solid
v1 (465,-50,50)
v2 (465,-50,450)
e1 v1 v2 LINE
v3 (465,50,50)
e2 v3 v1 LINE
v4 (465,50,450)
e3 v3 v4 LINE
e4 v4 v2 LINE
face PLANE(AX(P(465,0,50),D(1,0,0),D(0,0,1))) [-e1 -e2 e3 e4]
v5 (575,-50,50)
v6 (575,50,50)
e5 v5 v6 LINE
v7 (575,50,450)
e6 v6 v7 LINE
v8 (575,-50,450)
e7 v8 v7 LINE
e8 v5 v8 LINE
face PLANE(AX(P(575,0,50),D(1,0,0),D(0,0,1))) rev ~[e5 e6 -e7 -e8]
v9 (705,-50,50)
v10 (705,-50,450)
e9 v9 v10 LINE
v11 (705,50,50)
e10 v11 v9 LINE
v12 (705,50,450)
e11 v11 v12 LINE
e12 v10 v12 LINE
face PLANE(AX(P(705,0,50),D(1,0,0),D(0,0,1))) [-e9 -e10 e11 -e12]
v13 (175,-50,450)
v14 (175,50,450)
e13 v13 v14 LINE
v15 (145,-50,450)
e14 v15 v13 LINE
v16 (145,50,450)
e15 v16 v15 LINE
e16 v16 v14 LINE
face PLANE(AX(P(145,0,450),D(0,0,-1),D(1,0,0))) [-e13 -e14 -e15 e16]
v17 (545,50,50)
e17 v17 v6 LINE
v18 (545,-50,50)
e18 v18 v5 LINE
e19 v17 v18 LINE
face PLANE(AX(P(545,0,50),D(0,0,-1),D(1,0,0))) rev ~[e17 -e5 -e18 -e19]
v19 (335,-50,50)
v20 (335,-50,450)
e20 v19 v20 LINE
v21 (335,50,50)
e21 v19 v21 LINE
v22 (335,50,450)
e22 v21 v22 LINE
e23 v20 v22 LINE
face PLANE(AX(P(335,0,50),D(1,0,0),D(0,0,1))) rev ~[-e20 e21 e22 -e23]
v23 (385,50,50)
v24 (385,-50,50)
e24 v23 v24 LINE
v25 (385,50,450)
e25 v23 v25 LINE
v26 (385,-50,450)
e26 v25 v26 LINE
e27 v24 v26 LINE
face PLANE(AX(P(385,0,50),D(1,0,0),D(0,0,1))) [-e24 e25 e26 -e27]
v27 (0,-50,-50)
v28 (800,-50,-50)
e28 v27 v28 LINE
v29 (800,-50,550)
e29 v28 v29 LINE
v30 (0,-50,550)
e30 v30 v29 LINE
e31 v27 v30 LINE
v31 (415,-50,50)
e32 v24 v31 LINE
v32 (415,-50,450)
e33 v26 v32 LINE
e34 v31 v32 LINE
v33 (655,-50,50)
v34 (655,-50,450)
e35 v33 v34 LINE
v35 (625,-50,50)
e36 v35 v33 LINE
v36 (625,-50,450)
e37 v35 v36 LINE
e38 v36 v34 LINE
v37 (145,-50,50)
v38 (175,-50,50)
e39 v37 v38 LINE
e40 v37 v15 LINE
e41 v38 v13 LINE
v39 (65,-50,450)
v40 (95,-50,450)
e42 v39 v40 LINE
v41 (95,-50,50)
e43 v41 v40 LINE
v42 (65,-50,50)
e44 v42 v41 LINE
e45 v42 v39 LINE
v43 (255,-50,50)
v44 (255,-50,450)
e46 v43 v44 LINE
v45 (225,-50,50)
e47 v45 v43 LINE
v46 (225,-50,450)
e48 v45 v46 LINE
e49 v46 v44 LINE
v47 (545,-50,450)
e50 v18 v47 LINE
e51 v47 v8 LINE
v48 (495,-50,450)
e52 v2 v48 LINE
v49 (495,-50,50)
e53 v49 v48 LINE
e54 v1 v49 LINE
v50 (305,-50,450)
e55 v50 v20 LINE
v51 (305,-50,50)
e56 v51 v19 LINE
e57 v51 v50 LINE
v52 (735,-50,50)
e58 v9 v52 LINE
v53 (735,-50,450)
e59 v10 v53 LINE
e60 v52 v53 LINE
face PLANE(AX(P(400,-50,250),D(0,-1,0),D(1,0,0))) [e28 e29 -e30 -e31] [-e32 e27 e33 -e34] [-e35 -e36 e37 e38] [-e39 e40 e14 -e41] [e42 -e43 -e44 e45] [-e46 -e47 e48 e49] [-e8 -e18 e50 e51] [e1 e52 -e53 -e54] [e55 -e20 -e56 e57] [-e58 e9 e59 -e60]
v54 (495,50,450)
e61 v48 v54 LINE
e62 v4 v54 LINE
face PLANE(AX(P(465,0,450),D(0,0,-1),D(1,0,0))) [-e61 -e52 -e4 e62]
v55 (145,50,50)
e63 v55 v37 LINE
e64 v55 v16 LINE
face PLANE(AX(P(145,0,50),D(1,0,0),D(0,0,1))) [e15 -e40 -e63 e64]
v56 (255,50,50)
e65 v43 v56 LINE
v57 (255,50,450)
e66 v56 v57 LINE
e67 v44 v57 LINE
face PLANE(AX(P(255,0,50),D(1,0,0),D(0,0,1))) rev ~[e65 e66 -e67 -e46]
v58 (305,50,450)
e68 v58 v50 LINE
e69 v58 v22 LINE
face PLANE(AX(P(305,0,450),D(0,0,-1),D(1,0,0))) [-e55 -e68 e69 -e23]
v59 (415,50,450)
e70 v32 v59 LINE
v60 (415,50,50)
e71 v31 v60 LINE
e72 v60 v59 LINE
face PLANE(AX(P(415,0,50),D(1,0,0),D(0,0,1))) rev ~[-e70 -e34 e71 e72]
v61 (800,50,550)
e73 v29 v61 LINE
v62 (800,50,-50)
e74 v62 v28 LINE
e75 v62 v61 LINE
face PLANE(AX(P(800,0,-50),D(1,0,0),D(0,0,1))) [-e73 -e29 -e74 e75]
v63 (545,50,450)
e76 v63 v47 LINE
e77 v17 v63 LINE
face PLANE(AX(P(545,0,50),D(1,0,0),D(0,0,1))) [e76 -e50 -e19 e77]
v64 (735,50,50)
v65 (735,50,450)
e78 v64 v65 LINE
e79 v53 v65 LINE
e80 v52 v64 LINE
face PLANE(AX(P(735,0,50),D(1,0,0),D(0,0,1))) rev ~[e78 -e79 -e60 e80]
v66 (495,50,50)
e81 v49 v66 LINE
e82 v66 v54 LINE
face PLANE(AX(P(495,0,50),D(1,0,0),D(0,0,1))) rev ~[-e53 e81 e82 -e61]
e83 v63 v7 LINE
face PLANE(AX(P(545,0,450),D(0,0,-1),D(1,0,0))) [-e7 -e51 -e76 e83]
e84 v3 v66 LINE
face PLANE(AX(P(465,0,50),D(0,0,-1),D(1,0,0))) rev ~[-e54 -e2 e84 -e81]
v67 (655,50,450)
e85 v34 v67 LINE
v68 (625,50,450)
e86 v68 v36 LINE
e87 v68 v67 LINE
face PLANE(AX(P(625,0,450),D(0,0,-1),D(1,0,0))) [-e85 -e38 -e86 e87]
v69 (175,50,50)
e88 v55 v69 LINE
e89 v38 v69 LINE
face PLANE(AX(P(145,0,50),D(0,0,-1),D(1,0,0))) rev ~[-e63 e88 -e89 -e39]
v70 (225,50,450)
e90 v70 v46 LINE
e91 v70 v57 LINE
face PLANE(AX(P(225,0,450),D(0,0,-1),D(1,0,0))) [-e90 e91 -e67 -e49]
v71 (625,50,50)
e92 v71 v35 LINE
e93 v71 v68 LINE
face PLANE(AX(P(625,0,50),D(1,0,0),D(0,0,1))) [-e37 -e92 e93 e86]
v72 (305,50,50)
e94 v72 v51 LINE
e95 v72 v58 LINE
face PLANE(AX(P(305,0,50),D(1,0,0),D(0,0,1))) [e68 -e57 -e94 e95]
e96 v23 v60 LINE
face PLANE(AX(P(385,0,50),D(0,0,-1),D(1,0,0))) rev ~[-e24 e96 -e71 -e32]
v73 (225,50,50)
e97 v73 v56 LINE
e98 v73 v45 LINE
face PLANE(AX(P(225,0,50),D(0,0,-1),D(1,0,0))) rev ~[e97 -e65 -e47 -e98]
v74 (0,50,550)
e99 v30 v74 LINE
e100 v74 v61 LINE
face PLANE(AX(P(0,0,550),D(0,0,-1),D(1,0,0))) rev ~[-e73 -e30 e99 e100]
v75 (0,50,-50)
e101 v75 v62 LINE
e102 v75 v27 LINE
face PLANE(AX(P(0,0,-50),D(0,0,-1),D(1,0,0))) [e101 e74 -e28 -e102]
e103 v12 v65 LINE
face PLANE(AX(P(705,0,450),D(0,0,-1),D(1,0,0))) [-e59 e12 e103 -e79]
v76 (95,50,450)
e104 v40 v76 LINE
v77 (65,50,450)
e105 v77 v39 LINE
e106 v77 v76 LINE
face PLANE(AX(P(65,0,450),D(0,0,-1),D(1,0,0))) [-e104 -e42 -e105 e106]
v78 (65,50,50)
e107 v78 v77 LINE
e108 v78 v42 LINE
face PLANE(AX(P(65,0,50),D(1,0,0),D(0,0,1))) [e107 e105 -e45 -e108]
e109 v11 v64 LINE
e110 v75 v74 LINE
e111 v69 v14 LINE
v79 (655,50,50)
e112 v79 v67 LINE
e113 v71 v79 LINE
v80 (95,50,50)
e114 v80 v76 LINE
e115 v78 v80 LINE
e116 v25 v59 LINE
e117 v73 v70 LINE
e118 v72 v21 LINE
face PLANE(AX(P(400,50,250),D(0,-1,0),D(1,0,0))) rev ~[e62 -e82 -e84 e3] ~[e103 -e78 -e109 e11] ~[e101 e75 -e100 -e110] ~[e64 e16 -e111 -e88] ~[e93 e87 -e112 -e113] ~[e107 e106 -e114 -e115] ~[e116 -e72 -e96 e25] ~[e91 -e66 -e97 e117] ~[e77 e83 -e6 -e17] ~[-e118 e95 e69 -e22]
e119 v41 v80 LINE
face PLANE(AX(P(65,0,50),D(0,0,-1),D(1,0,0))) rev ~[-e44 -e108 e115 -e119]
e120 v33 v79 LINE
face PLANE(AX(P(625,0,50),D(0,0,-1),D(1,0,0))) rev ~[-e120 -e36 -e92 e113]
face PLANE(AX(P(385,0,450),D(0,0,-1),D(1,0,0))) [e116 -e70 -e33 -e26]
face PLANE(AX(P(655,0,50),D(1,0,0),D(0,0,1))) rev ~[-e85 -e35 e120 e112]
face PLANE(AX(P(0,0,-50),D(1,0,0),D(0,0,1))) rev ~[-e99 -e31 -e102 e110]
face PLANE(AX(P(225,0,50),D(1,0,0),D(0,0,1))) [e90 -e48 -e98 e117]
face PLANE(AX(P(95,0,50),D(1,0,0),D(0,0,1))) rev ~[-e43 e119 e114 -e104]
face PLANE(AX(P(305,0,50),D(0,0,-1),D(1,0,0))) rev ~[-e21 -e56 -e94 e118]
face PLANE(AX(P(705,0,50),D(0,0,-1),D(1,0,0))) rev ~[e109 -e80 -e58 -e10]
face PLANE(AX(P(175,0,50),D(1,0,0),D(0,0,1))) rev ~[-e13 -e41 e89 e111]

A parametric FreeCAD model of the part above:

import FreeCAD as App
import Part
import Sketcher
from FreeCAD import Vector


def add_polygon(sketch, points):
    """Adds a closed chain of lines whose ends are joined by coincident constraints."""
    first, n = sketch.GeometryCount, len(points)
    for a, b in zip(points, points[1:] + points[:1]):
        sketch.addGeometry(Part.LineSegment(App.Vector(*a, 0), App.Vector(*b, 0)), False)
    for i in range(n):
        sketch.addConstraint(Sketcher.Constraint("Coincident", first + i, 2, first + (i + 1) % n, 1))

doc = App.newDocument("Part")
body = doc.addObject("PartDesign::Body", "Body")

# Sketch on XZ plane
sketch1 = body.newObject("Sketcher::SketchObject", "Sketch")
sketch1.AttachmentSupport = (doc.getObject("XZ_Plane"), [""])
sketch1.MapMode = "FlatFace"
add_polygon(sketch1, [(0, 550), (0, -50), (800, -50), (800, 550)])  # lines 0-3
add_polygon(sketch1, [(95, 50), (65, 50), (65, 450), (95, 450)])  # lines 4-7
add_polygon(sketch1, [(175, 50), (145, 50), (145, 450), (175, 450)])  # lines 8-11
add_polygon(sketch1, [(255, 50), (225, 50), (225, 450), (255, 450)])  # lines 12-15
add_polygon(sketch1, [(335, 50), (305, 50), (305, 450), (335, 450)])  # lines 16-19
add_polygon(sketch1, [(415, 50), (385, 50), (385, 450), (415, 450)])  # lines 20-23
add_polygon(sketch1, [(495, 50), (465, 50), (465, 450), (495, 450)])  # lines 24-27
add_polygon(sketch1, [(575, 50), (545, 50), (545, 450), (575, 450)])  # lines 28-31
add_polygon(sketch1, [(655, 50), (625, 50), (625, 450), (655, 450)])  # lines 32-35
add_polygon(sketch1, [(735, 50), (705, 50), (705, 450), (735, 450)])  # lines 36-39
sketch1.addConstraint(Sketcher.Constraint("Vertical", 0))
sketch1.addConstraint(Sketcher.Constraint("Horizontal", 1))
sketch1.addConstraint(Sketcher.Constraint("Vertical", 2))
sketch1.addConstraint(Sketcher.Constraint("Horizontal", 3))
sketch1.addConstraint(Sketcher.Constraint("Horizontal", 4))
sketch1.addConstraint(Sketcher.Constraint("Vertical", 5))
sketch1.addConstraint(Sketcher.Constraint("Horizontal", 6))
sketch1.addConstraint(Sketcher.Constraint("Vertical", 7))
sketch1.addConstraint(Sketcher.Constraint("Horizontal", 8))
sketch1.addConstraint(Sketcher.Constraint("Vertical", 9))
sketch1.addConstraint(Sketcher.Constraint("Horizontal", 10))
sketch1.addConstraint(Sketcher.Constraint("Vertical", 11))
sketch1.addConstraint(Sketcher.Constraint("Horizontal", 12))
sketch1.addConstraint(Sketcher.Constraint("Vertical", 13))
sketch1.addConstraint(Sketcher.Constraint("Horizontal", 14))
sketch1.addConstraint(Sketcher.Constraint("Vertical", 15))
sketch1.addConstraint(Sketcher.Constraint("Horizontal", 16))
sketch1.addConstraint(Sketcher.Constraint("Vertical", 17))
sketch1.addConstraint(Sketcher.Constraint("Horizontal", 18))
sketch1.addConstraint(Sketcher.Constraint("Vertical", 19))
sketch1.addConstraint(Sketcher.Constraint("Horizontal", 20))
sketch1.addConstraint(Sketcher.Constraint("Vertical", 21))
sketch1.addConstraint(Sketcher.Constraint("Horizontal", 22))
sketch1.addConstraint(Sketcher.Constraint("Vertical", 23))
sketch1.addConstraint(Sketcher.Constraint("Horizontal", 24))
sketch1.addConstraint(Sketcher.Constraint("Vertical", 25))
sketch1.addConstraint(Sketcher.Constraint("Horizontal", 26))
sketch1.addConstraint(Sketcher.Constraint("Vertical", 27))
sketch1.addConstraint(Sketcher.Constraint("Horizontal", 28))
sketch1.addConstraint(Sketcher.Constraint("Vertical", 29))
sketch1.addConstraint(Sketcher.Constraint("Horizontal", 30))
sketch1.addConstraint(Sketcher.Constraint("Vertical", 31))
sketch1.addConstraint(Sketcher.Constraint("Horizontal", 32))
sketch1.addConstraint(Sketcher.Constraint("Vertical", 33))
sketch1.addConstraint(Sketcher.Constraint("Horizontal", 34))
sketch1.addConstraint(Sketcher.Constraint("Vertical", 35))
sketch1.addConstraint(Sketcher.Constraint("Horizontal", 36))
sketch1.addConstraint(Sketcher.Constraint("Vertical", 37))
sketch1.addConstraint(Sketcher.Constraint("Horizontal", 38))
sketch1.addConstraint(Sketcher.Constraint("Vertical", 39))
sketch1.addConstraint(Sketcher.Constraint("PointOnObject", 0, 2, -2))
sketch1.addConstraint(Sketcher.Constraint("Horizontal", 7, 2, 8, 2))
sketch1.addConstraint(Sketcher.Constraint("Horizontal", 6, 2, 9, 2))
sketch1.addConstraint(Sketcher.Constraint("Horizontal", 11, 2, 12, 2))
sketch1.addConstraint(Sketcher.Constraint("Horizontal", 10, 2, 13, 2))
sketch1.addConstraint(Sketcher.Constraint("Horizontal", 15, 2, 16, 2))
sketch1.addConstraint(Sketcher.Constraint("Horizontal", 14, 2, 17, 2))
sketch1.addConstraint(Sketcher.Constraint("Horizontal", 19, 2, 20, 2))
sketch1.addConstraint(Sketcher.Constraint("Horizontal", 18, 2, 21, 2))
sketch1.addConstraint(Sketcher.Constraint("Horizontal", 23, 2, 24, 2))
sketch1.addConstraint(Sketcher.Constraint("Horizontal", 22, 2, 25, 2))
sketch1.addConstraint(Sketcher.Constraint("Horizontal", 27, 2, 28, 2))
sketch1.addConstraint(Sketcher.Constraint("Horizontal", 26, 2, 29, 2))
sketch1.addConstraint(Sketcher.Constraint("Horizontal", 31, 2, 32, 2))
sketch1.addConstraint(Sketcher.Constraint("Horizontal", 30, 2, 33, 2))
sketch1.addConstraint(Sketcher.Constraint("Horizontal", 35, 2, 36, 2))
sketch1.addConstraint(Sketcher.Constraint("Horizontal", 34, 2, 37, 2))
sketch1.addConstraint(Sketcher.Constraint("Equal", 6, 8))
sketch1.addConstraint(Sketcher.Constraint("Equal", 10, 12))
sketch1.addConstraint(Sketcher.Constraint("Equal", 14, 16))
sketch1.addConstraint(Sketcher.Constraint("Equal", 18, 20))
sketch1.addConstraint(Sketcher.Constraint("Equal", 22, 24))
sketch1.addConstraint(Sketcher.Constraint("Equal", 26, 28))
sketch1.addConstraint(Sketcher.Constraint("Equal", 30, 32))
sketch1.addConstraint(Sketcher.Constraint("Equal", 34, 36))
sketch1.addConstraint(Sketcher.Constraint("DistanceX", 1, 1, 1, 2, 800.0))
sketch1.addConstraint(Sketcher.Constraint("DistanceX", 4, 2, 4, 1, 30.0))
sketch1.addConstraint(Sketcher.Constraint("DistanceY", 0, 2, 0, 1, 600.0))
sketch1.addConstraint(Sketcher.Constraint("DistanceY", 5, 1, 5, 2, 400.0))
sketch1.addConstraint(Sketcher.Constraint("DistanceY", 0, 2, -1, 1, 50.0))
sketch1.addConstraint(Sketcher.Constraint("DistanceX", -1, 1, 4, 2, 65.0))
sketch1.addConstraint(Sketcher.Constraint("DistanceY", -1, 1, 4, 2, 50.0))
sketch1.addConstraint(Sketcher.Constraint("DistanceX", -1, 1, 8, 2, 145.0))
sketch1.addConstraint(Sketcher.Constraint("DistanceX", -1, 1, 12, 2, 225.0))
sketch1.addConstraint(Sketcher.Constraint("DistanceX", -1, 1, 16, 2, 305.0))
sketch1.addConstraint(Sketcher.Constraint("DistanceX", -1, 1, 20, 2, 385.0))
sketch1.addConstraint(Sketcher.Constraint("DistanceX", -1, 1, 24, 2, 465.0))
sketch1.addConstraint(Sketcher.Constraint("DistanceX", -1, 1, 28, 2, 545.0))
sketch1.addConstraint(Sketcher.Constraint("DistanceX", -1, 1, 32, 2, 625.0))
sketch1.addConstraint(Sketcher.Constraint("DistanceX", -1, 1, 36, 2, 705.0))
pad1 = body.newObject("PartDesign::Pad", "Pad")
pad1.Profile = sketch1
pad1.Length = 100
pad1.Midplane = True

doc.recompute()
